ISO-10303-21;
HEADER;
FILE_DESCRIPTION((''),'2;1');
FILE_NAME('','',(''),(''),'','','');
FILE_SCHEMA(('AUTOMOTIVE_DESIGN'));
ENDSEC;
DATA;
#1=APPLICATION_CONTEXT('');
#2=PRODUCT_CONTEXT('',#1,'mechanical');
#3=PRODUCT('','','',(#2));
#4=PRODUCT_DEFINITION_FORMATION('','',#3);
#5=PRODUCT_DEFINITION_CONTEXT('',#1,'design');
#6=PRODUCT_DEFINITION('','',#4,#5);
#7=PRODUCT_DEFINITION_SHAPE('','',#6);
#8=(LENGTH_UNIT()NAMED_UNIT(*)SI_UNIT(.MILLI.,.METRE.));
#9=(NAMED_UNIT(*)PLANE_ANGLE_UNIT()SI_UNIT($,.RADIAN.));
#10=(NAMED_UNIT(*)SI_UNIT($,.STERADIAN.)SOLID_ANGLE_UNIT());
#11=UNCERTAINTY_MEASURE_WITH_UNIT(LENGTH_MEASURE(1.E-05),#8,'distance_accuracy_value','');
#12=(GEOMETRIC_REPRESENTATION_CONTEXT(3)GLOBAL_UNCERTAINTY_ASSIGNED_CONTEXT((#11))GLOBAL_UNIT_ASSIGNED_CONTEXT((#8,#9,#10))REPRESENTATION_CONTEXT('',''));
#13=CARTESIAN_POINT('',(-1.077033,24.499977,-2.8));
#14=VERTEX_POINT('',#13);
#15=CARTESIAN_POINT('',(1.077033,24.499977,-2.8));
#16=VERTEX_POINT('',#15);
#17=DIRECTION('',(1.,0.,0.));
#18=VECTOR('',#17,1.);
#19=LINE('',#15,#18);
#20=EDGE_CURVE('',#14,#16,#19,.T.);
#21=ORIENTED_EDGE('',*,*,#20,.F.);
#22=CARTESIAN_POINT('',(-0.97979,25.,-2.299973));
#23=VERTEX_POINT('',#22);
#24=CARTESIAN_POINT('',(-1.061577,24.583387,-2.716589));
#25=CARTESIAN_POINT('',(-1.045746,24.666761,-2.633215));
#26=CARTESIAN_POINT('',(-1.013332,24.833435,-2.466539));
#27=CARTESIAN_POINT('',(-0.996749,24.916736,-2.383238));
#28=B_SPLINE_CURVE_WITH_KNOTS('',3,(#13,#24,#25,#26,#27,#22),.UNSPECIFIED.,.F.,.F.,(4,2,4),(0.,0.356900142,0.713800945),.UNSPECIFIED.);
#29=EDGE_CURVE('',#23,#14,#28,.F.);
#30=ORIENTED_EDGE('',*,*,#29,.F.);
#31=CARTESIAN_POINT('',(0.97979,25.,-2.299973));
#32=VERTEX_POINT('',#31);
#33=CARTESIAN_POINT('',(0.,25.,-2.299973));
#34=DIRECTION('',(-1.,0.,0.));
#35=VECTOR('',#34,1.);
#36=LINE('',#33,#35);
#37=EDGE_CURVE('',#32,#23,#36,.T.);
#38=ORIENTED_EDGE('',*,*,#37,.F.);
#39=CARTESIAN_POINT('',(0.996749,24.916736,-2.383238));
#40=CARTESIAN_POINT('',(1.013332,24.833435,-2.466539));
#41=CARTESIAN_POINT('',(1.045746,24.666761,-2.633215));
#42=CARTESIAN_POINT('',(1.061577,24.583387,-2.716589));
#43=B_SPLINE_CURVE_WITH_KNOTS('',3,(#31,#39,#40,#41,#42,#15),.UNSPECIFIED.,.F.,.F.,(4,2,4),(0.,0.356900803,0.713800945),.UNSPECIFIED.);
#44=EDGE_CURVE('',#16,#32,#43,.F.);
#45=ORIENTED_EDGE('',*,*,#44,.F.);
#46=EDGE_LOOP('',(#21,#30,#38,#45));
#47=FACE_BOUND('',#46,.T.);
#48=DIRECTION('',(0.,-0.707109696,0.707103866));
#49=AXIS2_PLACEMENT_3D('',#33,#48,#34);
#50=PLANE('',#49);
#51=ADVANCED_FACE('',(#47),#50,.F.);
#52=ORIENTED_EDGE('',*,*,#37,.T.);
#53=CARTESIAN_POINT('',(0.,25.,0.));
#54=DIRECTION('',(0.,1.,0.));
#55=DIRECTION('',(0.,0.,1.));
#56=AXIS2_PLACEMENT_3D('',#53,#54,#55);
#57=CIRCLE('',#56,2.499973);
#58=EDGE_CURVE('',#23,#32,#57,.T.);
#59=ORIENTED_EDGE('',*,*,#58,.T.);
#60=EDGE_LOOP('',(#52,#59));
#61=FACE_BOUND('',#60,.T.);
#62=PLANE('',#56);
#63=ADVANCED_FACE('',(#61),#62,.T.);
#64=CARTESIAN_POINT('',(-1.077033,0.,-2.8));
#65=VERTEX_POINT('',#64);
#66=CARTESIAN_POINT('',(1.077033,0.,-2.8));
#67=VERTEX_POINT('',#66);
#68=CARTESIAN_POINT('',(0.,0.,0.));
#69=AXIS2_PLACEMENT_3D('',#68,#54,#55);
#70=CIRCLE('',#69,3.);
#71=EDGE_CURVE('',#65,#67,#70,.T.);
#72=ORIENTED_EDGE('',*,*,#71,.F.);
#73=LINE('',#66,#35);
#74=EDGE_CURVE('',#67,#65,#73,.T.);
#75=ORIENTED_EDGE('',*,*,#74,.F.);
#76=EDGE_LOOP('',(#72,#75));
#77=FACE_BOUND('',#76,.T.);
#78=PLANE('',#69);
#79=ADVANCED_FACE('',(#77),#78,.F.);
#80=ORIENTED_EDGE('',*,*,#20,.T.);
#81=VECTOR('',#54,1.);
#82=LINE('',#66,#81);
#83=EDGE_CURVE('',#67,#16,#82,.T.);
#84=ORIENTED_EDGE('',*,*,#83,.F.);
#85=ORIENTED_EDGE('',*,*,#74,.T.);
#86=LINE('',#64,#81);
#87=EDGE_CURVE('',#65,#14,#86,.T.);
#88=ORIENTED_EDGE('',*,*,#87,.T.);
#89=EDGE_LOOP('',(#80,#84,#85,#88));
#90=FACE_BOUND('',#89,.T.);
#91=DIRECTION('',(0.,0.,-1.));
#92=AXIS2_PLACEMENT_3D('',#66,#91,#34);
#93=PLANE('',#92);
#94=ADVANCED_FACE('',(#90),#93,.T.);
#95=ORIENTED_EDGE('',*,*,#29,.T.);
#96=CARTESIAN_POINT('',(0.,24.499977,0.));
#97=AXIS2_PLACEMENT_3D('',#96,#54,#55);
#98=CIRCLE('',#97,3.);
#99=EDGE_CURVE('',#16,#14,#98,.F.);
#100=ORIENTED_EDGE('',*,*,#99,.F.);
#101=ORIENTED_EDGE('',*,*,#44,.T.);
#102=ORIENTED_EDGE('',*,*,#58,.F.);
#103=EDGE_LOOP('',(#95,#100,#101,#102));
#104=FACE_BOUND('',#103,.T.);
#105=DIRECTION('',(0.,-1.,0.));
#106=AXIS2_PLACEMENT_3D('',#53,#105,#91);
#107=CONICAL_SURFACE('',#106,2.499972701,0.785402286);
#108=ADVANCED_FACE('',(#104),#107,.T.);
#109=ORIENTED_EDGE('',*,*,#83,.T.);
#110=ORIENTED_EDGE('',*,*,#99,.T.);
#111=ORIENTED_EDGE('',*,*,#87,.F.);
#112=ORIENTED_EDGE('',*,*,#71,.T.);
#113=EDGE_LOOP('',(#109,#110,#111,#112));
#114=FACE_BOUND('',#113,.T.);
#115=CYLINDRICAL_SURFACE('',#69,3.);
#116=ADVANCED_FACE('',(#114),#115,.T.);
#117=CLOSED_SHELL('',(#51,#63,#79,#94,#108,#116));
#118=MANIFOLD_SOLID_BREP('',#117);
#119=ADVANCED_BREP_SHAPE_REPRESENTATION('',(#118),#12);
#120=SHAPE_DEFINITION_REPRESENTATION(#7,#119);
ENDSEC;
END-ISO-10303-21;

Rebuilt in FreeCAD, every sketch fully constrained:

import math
import FreeCAD as App
import Part
import Sketcher
from FreeCAD import Vector


def edges_at(feature, points):
    """Names of the edges that pass closest to the given points."""
    edges = feature.Shape.Edges
    near = lambda p: min(range(len(edges)), key=lambda i: edges[i].distToShape(Part.Vertex(*p))[0])
    return sorted({f"Edge{near(p) + 1}" for p in points})

doc = App.newDocument("Part")
params = doc.addObject("Spreadsheet::Sheet", "Params")
for row, (alias, value) in enumerate([
    ("sketch1_radius", "3 mm"),
    ("pad1_length", "25 mm"),
    ("chamfer_size", "0.500027 mm"),
    ("chamfer_size2", "0.500023 mm"),
    ("chamfer2_size", "0.500027 mm"),
    ("chamfer2_size2", "0.500023 mm"),
], start=1):
    params.set(f"A{row}", alias)
    params.set(f"B{row}", "=" + value)
    params.setAlias(f"B{row}", alias)

body = doc.addObject("PartDesign::Body", "Body")

sketch1 = body.newObject("Sketcher::SketchObject", "Sketch")
sketch1.AttachmentSupport = (doc.getObject("XZ_Plane"), [""])
sketch1.MapMode = "FlatFace"
sketch1.AttachmentOffset = App.Placement(Vector(0, 0, -25), App.Rotation())
sketch1.addGeometry([
    Part.LineSegment(Vector(1.077033, -2.8, 0), Vector(-1.077033, -2.8, 0)),
    Part.ArcOfCircle(Part.Circle(Vector(0, 0, 0), Vector(0, 0, 1), 3), math.radians(-68.96053), math.radians(248.96053)),
], False)
sketch1.addConstraint([
    Sketcher.Constraint("Coincident", 0, 1, 1, 1),
    Sketcher.Constraint("Coincident", 1, 2, 0, 2),
    Sketcher.Constraint("Horizontal", 0),
    Sketcher.Constraint("Coincident", 1, 3, -1, 1),
    Sketcher.Constraint("Radius", 1, 3.0),
    Sketcher.Constraint("DistanceY", 0, 1, -1, 1, 2.8),
])
sketch1.setExpression("Constraints[4]", "Params.sketch1_radius")
pad1 = body.newObject("PartDesign::Pad", "Pad")
pad1.Profile = sketch1
pad1.setExpression("Length", "Params.pad1_length")
doc.recompute()

chamfer = body.newObject("PartDesign::Chamfer", "Chamfer")
chamfer.Base = (pad1, edges_at(pad1, [(0, 25, -2.8)]))
chamfer.ChamferType = "Two distances"
chamfer.setExpression("Size", "Params.chamfer_size")
chamfer.setExpression("Size2", "Params.chamfer_size2")
doc.recompute()

chamfer2 = body.newObject("PartDesign::Chamfer", "Chamfer001")
chamfer2.Base = (chamfer, edges_at(chamfer, [(0, 25, 3)]))
chamfer2.ChamferType = "Two distances"
chamfer2.setExpression("Size", "Params.chamfer2_size")
chamfer2.setExpression("Size2", "Params.chamfer2_size2")

doc.recompute()
